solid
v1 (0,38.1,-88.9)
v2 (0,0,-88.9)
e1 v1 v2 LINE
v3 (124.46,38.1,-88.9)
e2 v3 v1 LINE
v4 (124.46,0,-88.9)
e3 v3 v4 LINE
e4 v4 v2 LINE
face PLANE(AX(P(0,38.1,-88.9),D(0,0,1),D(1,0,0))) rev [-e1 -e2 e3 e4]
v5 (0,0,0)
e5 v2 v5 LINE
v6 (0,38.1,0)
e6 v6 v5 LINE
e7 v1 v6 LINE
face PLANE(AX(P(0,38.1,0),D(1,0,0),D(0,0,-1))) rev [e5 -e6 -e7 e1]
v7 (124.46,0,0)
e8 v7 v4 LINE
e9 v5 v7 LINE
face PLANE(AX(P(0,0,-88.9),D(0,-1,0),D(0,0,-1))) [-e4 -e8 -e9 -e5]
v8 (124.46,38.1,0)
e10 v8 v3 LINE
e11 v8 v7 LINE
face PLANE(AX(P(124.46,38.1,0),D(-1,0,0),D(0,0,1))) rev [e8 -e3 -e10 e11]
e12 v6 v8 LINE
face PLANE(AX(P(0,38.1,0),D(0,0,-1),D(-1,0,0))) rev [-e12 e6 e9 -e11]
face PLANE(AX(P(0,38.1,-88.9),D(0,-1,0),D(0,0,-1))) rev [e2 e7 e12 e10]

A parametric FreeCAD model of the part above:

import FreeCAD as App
import Part
import Sketcher
from FreeCAD import Vector
Q = App.Units.Quantity


def add_polygon(sketch, points):
    """Adds a closed chain of lines whose ends are joined by coincident constraints."""
    first, n = sketch.GeometryCount, len(points)
    for a, b in zip(points, points[1:] + points[:1]):
        sketch.addGeometry(Part.LineSegment(App.Vector(*a, 0), App.Vector(*b, 0)), False)
    for i in range(n):
        sketch.addConstraint(Sketcher.Constraint("Coincident", first + i, 2, first + (i + 1) % n, 1))

doc = App.newDocument("Part")
params = doc.addObject("Spreadsheet::Sheet", "Params")
for row, (alias, value) in enumerate([
    ("sketch1_width", "4.9 in"),
    ("sketch1_height", "3.5 in"),
    ("pad1_length", "1.5 in"),
], start=1):
    params.set(f"A{row}", alias)
    params.set(f"B{row}", "=" + value)
    params.setAlias(f"B{row}", alias)

body = doc.addObject("PartDesign::Body", "Body")

# Sketch on XZ plane
sketch1 = body.newObject("Sketcher::SketchObject", "Sketch")
sketch1.AttachmentSupport = (doc.getObject("XZ_Plane"), [""])
sketch1.MapMode = "FlatFace"
add_polygon(sketch1, [(0, -89), (0, 0), (124, 0), (124, -89)])  # lines 0-3
sketch1.addConstraint(Sketcher.Constraint("Vertical", 0))
sketch1.addConstraint(Sketcher.Constraint("Horizontal", 1))
sketch1.addConstraint(Sketcher.Constraint("Vertical", 2))
sketch1.addConstraint(Sketcher.Constraint("Horizontal", 3))
sketch1.addConstraint(Sketcher.Constraint("Coincident", 0, 2, -1, 1))
sketch1.addConstraint(Sketcher.Constraint("DistanceX", 1, 1, 1, 2, Q("4.9 in")))
sketch1.addConstraint(Sketcher.Constraint("DistanceY", 0, 1, 0, 2, Q("3.5 in")))
sketch1.setExpression("Constraints[9]", "Params.sketch1_width")
sketch1.setExpression("Constraints[10]", "Params.sketch1_height")
pad1 = body.newObject("PartDesign::Pad", "Pad")
pad1.Profile = sketch1
pad1.setExpression("Length", "Params.pad1_length")
pad1.Reversed = True

doc.recompute()
